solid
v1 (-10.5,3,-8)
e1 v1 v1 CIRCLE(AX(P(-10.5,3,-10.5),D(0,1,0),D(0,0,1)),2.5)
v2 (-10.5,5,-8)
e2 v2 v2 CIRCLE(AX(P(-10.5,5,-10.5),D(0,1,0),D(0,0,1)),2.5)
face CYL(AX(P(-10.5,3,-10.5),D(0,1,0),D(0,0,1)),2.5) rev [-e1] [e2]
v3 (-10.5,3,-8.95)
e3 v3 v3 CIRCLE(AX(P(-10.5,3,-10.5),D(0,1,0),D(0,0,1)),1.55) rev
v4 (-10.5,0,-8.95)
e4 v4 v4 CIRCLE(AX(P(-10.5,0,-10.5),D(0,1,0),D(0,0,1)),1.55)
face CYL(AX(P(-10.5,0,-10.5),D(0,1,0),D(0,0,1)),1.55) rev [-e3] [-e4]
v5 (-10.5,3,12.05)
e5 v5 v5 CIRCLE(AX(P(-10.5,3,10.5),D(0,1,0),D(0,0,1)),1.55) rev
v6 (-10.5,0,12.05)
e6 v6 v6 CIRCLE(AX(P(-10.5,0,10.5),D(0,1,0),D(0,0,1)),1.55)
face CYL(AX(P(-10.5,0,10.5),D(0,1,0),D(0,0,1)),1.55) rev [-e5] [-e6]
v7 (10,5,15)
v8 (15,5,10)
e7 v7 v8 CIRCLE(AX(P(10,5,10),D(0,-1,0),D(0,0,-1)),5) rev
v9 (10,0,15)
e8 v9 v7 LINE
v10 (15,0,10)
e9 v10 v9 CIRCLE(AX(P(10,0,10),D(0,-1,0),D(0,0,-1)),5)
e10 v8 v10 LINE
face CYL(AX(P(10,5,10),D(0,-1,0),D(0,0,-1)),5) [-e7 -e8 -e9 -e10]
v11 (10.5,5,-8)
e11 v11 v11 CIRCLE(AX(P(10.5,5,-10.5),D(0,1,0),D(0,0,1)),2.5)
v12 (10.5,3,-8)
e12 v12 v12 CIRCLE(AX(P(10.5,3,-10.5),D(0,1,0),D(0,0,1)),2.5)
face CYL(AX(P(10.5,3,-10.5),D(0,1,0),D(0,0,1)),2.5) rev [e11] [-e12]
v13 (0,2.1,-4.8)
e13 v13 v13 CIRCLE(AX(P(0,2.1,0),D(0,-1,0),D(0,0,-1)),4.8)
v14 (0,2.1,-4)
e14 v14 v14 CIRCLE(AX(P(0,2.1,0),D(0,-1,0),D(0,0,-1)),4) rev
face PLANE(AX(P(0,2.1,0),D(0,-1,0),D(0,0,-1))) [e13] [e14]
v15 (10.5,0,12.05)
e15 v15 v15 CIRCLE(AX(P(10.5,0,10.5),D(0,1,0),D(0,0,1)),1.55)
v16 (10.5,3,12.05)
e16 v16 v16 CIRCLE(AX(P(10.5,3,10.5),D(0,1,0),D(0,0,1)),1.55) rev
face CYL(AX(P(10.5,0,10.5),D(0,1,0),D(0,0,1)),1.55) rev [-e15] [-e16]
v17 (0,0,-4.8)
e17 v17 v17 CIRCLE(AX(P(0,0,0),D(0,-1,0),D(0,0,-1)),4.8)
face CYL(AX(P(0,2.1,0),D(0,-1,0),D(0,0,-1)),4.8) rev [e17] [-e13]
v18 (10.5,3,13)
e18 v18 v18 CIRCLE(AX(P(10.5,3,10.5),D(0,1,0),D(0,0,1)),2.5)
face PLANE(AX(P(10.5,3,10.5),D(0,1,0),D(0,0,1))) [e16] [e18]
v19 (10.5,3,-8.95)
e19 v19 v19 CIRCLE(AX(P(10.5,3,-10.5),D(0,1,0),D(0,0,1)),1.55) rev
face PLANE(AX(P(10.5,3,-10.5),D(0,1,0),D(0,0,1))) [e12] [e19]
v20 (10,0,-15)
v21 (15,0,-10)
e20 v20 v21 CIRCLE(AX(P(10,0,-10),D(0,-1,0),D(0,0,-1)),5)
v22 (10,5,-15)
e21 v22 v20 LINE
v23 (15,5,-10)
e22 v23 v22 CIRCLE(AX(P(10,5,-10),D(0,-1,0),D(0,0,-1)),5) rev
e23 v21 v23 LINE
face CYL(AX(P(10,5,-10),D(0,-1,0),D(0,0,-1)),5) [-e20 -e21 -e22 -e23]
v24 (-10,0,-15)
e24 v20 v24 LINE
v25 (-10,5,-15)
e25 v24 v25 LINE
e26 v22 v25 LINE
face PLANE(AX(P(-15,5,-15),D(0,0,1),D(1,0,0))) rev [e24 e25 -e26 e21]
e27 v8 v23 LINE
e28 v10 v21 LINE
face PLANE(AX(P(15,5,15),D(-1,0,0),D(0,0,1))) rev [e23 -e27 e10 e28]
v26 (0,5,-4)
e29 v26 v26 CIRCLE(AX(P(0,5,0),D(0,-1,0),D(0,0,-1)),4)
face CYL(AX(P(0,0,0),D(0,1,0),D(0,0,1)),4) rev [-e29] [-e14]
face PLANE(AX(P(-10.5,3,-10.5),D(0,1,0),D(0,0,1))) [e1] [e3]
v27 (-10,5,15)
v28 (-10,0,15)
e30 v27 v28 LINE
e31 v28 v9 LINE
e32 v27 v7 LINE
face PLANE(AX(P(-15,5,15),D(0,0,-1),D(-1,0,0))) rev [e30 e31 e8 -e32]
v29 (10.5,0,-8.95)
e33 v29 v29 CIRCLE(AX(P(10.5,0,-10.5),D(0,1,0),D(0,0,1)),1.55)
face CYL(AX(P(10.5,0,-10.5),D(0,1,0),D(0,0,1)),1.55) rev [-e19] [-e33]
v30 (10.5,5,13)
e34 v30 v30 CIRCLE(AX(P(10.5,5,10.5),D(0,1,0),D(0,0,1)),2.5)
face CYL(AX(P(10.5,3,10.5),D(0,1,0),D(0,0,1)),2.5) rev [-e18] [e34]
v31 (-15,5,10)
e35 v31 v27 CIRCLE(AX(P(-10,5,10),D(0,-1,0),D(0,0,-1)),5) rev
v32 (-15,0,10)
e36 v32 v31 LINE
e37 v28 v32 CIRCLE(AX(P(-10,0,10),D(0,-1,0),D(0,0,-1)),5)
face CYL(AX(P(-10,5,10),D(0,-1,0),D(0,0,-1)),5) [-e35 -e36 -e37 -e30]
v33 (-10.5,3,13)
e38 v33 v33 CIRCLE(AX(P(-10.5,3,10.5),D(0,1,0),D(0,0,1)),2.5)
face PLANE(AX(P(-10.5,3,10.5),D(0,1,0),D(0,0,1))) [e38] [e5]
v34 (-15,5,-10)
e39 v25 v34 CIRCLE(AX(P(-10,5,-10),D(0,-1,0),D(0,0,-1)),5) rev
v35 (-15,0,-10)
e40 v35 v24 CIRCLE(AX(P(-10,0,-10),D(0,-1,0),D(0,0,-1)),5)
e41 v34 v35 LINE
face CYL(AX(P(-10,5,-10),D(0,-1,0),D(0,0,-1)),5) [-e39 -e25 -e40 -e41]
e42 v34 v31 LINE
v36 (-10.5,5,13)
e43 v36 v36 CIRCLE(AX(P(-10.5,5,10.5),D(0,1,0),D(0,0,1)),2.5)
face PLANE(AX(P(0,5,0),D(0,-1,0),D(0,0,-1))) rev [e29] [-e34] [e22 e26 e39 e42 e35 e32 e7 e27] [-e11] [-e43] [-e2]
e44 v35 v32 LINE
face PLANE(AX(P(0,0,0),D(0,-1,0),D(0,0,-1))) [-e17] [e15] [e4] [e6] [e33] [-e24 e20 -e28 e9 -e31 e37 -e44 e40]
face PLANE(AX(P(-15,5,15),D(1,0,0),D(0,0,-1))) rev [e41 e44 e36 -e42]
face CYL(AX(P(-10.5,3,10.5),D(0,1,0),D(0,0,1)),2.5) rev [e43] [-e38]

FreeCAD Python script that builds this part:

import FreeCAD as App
import Part
import Sketcher
from FreeCAD import Vector
Q = App.Units.Quantity


def edges_at(feature, points):
    """Names of the edges that pass closest to the given points."""
    edges = feature.Shape.Edges
    near = lambda p: min(range(len(edges)), key=lambda i: edges[i].distToShape(Part.Vertex(*p))[0])
    return sorted({f"Edge{near(p) + 1}" for p in points})

doc = App.newDocument("Part")
body = doc.addObject("PartDesign::Body", "Body")

# Sketch on XZ plane
sketch1 = body.newObject("Sketcher::SketchObject", "Sketch")
sketch1.AttachmentSupport = (doc.getObject("XZ_Plane"), [""])
sketch1.MapMode = "FlatFace"
sketch1.addGeometry(Part.LineSegment(Vector(-15, -15, 0), Vector(-15, 15, 0)), False)
sketch1.addGeometry(Part.LineSegment(Vector(-15, 15, 0), Vector(15, 15, 0)), False)
sketch1.addGeometry(Part.LineSegment(Vector(15, 15, 0), Vector(15, -15, 0)), False)
sketch1.addGeometry(Part.LineSegment(Vector(15, -15, 0), Vector(-15, -15, 0)), False)
sketch1.addConstraint(Sketcher.Constraint("Coincident", 0, 2, 1, 1))
sketch1.addConstraint(Sketcher.Constraint("Coincident", 1, 2, 2, 1))
sketch1.addConstraint(Sketcher.Constraint("Coincident", 2, 2, 3, 1))
sketch1.addConstraint(Sketcher.Constraint("Coincident", 3, 2, 0, 1))
sketch1.addConstraint(Sketcher.Constraint("Vertical", 0))
sketch1.addConstraint(Sketcher.Constraint("Horizontal", 1))
sketch1.addConstraint(Sketcher.Constraint("Vertical", 2))
sketch1.addConstraint(Sketcher.Constraint("Horizontal", 3))
sketch1.addConstraint(Sketcher.Constraint("Symmetric", 0, 2, 2, 2, -1, 1))
sketch1.addConstraint(Sketcher.Constraint("Equal", 3, 0))
sketch1.addConstraint(Sketcher.Constraint("DistanceX", 1, 1, 1, 2, Q("30 mm")))
pad1 = body.newObject("PartDesign::Pad", "Pad")
pad1.Profile = sketch1
pad1.Length = 5
pad1.Reversed = True

# Sketch on XZ plane
sketch2 = body.newObject("Sketcher::SketchObject", "Sketch001")
sketch2.AttachmentSupport = (doc.getObject("XZ_Plane"), [""])
sketch2.MapMode = "FlatFace"
sketch2.AttachmentOffset = App.Placement(Vector(0, 0, -5), App.Rotation())
sketch2.addGeometry(Part.Circle(Vector(0, 0, 0), Vector(0, 0, 1), 4), False)
sketch2.addConstraint(Sketcher.Constraint("Coincident", 0, 3, -1, 1))
sketch2.addConstraint(Sketcher.Constraint("Diameter", 0, Q("8 mm")))
pocket1 = body.newObject("PartDesign::Pocket", "Pocket")
pocket1.Profile = sketch2
pocket1.Type = "ThroughAll"
pocket1.Midplane = True

# Sketch on XZ plane
sketch3 = body.newObject("Sketcher::SketchObject", "Sketch002")
sketch3.AttachmentSupport = (doc.getObject("XZ_Plane"), [""])
sketch3.MapMode = "FlatFace"
sketch3.AttachmentOffset = App.Placement(Vector(0, 0, -5), App.Rotation())
sketch3.addGeometry(Part.Circle(Vector(-10.5, -10.5, 0), Vector(0, 0, 1), 1.6), False)
sketch3.addGeometry(Part.Circle(Vector(10.5, -10.5, 0), Vector(0, 0, 1), 1.6), False)
sketch3.addGeometry(Part.Circle(Vector(10.5, 10.5, 0), Vector(0, 0, 1), 1.6), False)
sketch3.addGeometry(Part.Circle(Vector(-10.5, 10.5, 0), Vector(0, 0, 1), 1.6), False)
sketch3.addConstraint(Sketcher.Constraint("Equal", 0, 1))
sketch3.addConstraint(Sketcher.Constraint("Equal", 1, 2))
sketch3.addConstraint(Sketcher.Constraint("Equal", 2, 3))
sketch3.addConstraint(Sketcher.Constraint("Symmetric", 0, 3, 2, 3, -1, 1))
sketch3.addConstraint(Sketcher.Constraint("Symmetric", 1, 3, 3, 3, -1, 1))
sketch3.addConstraint(Sketcher.Constraint("Symmetric", 0, 3, 1, 3, -2))
sketch3.addConstraint(Sketcher.Constraint("Diameter", 0, Q("3.1 mm")))
sketch3.addConstraint(Sketcher.Constraint("DistanceX", 0, 3, 1, 3, Q("21 mm")))
sketch3.addConstraint(Sketcher.Constraint("DistanceY", 1, 3, 2, 3, Q("21 mm")))
pocket2 = body.newObject("PartDesign::Pocket", "Pocket001")
pocket2.Profile = sketch3
pocket2.Type = "ThroughAll"
pocket2.Midplane = True

# Sketch on XZ plane
sketch4 = body.newObject("Sketcher::SketchObject", "Sketch003")
sketch4.AttachmentSupport = (doc.getObject("XZ_Plane"), [""])
sketch4.MapMode = "FlatFace"
sketch4.addGeometry(Part.Circle(Vector(0, 0, 0), Vector(0, 0, 1), 4.8), False)
sketch4.addConstraint(Sketcher.Constraint("Coincident", 0, 3, -1, 1))
sketch4.addConstraint(Sketcher.Constraint("Diameter", 0, Q("9.6 mm")))
pocket3 = body.newObject("PartDesign::Pocket", "Pocket002")
pocket3.Profile = sketch4
pocket3.Length = 2.1
doc.recompute()

fillet = body.newObject("PartDesign::Fillet", "Fillet")
fillet.Base = (pocket3, edges_at(pocket3, [
    (15, 2.5, 15),
    (-15, 2.5, 15),
    (-15, 2.5, -15),
    (15, 2.5, -15),
]))
fillet.Radius = 5

# Sketch on XZ plane
sketch5 = body.newObject("Sketcher::SketchObject", "Sketch004")
sketch5.AttachmentSupport = (doc.getObject("XZ_Plane"), [""])
sketch5.MapMode = "FlatFace"
sketch5.AttachmentOffset = App.Placement(Vector(0, 0, -5), App.Rotation())
sketch5.addGeometry(Part.Circle(Vector(-10.5, -10.5, 0), Vector(0, 0, 1), 2.5), False)
sketch5.addGeometry(Part.Circle(Vector(10.5, -10.5, 0), Vector(0, 0, 1), 2.5), False)
sketch5.addGeometry(Part.Circle(Vector(-10.5, 10.5, 0), Vector(0, 0, 1), 2.5), False)
sketch5.addGeometry(Part.Circle(Vector(10.5, 10.5, 0), Vector(0, 0, 1), 2.5), False)
sketch5.addConstraint(Sketcher.Constraint("Equal", 0, 1))
sketch5.addConstraint(Sketcher.Constraint("Equal", 1, 2))
sketch5.addConstraint(Sketcher.Constraint("Equal", 2, 3))
sketch5.addConstraint(Sketcher.Constraint("Symmetric", 1, 3, 2, 3, -1, 1))
sketch5.addConstraint(Sketcher.Constraint("Symmetric", 0, 3, 3, 3, -1, 1))
sketch5.addConstraint(Sketcher.Constraint("Symmetric", 0, 3, 1, 3, -2))
sketch5.addConstraint(Sketcher.Constraint("Diameter", 0, Q("5 mm")))
sketch5.addConstraint(Sketcher.Constraint("DistanceX", 0, 3, 1, 3, Q("21 mm")))
sketch5.addConstraint(Sketcher.Constraint("DistanceY", 0, 3, 2, 3, Q("21 mm")))
pocket4 = body.newObject("PartDesign::Pocket", "Pocket003")
pocket4.Profile = sketch5
pocket4.Length = 2
pocket4.Reversed = True

doc.recompute()
